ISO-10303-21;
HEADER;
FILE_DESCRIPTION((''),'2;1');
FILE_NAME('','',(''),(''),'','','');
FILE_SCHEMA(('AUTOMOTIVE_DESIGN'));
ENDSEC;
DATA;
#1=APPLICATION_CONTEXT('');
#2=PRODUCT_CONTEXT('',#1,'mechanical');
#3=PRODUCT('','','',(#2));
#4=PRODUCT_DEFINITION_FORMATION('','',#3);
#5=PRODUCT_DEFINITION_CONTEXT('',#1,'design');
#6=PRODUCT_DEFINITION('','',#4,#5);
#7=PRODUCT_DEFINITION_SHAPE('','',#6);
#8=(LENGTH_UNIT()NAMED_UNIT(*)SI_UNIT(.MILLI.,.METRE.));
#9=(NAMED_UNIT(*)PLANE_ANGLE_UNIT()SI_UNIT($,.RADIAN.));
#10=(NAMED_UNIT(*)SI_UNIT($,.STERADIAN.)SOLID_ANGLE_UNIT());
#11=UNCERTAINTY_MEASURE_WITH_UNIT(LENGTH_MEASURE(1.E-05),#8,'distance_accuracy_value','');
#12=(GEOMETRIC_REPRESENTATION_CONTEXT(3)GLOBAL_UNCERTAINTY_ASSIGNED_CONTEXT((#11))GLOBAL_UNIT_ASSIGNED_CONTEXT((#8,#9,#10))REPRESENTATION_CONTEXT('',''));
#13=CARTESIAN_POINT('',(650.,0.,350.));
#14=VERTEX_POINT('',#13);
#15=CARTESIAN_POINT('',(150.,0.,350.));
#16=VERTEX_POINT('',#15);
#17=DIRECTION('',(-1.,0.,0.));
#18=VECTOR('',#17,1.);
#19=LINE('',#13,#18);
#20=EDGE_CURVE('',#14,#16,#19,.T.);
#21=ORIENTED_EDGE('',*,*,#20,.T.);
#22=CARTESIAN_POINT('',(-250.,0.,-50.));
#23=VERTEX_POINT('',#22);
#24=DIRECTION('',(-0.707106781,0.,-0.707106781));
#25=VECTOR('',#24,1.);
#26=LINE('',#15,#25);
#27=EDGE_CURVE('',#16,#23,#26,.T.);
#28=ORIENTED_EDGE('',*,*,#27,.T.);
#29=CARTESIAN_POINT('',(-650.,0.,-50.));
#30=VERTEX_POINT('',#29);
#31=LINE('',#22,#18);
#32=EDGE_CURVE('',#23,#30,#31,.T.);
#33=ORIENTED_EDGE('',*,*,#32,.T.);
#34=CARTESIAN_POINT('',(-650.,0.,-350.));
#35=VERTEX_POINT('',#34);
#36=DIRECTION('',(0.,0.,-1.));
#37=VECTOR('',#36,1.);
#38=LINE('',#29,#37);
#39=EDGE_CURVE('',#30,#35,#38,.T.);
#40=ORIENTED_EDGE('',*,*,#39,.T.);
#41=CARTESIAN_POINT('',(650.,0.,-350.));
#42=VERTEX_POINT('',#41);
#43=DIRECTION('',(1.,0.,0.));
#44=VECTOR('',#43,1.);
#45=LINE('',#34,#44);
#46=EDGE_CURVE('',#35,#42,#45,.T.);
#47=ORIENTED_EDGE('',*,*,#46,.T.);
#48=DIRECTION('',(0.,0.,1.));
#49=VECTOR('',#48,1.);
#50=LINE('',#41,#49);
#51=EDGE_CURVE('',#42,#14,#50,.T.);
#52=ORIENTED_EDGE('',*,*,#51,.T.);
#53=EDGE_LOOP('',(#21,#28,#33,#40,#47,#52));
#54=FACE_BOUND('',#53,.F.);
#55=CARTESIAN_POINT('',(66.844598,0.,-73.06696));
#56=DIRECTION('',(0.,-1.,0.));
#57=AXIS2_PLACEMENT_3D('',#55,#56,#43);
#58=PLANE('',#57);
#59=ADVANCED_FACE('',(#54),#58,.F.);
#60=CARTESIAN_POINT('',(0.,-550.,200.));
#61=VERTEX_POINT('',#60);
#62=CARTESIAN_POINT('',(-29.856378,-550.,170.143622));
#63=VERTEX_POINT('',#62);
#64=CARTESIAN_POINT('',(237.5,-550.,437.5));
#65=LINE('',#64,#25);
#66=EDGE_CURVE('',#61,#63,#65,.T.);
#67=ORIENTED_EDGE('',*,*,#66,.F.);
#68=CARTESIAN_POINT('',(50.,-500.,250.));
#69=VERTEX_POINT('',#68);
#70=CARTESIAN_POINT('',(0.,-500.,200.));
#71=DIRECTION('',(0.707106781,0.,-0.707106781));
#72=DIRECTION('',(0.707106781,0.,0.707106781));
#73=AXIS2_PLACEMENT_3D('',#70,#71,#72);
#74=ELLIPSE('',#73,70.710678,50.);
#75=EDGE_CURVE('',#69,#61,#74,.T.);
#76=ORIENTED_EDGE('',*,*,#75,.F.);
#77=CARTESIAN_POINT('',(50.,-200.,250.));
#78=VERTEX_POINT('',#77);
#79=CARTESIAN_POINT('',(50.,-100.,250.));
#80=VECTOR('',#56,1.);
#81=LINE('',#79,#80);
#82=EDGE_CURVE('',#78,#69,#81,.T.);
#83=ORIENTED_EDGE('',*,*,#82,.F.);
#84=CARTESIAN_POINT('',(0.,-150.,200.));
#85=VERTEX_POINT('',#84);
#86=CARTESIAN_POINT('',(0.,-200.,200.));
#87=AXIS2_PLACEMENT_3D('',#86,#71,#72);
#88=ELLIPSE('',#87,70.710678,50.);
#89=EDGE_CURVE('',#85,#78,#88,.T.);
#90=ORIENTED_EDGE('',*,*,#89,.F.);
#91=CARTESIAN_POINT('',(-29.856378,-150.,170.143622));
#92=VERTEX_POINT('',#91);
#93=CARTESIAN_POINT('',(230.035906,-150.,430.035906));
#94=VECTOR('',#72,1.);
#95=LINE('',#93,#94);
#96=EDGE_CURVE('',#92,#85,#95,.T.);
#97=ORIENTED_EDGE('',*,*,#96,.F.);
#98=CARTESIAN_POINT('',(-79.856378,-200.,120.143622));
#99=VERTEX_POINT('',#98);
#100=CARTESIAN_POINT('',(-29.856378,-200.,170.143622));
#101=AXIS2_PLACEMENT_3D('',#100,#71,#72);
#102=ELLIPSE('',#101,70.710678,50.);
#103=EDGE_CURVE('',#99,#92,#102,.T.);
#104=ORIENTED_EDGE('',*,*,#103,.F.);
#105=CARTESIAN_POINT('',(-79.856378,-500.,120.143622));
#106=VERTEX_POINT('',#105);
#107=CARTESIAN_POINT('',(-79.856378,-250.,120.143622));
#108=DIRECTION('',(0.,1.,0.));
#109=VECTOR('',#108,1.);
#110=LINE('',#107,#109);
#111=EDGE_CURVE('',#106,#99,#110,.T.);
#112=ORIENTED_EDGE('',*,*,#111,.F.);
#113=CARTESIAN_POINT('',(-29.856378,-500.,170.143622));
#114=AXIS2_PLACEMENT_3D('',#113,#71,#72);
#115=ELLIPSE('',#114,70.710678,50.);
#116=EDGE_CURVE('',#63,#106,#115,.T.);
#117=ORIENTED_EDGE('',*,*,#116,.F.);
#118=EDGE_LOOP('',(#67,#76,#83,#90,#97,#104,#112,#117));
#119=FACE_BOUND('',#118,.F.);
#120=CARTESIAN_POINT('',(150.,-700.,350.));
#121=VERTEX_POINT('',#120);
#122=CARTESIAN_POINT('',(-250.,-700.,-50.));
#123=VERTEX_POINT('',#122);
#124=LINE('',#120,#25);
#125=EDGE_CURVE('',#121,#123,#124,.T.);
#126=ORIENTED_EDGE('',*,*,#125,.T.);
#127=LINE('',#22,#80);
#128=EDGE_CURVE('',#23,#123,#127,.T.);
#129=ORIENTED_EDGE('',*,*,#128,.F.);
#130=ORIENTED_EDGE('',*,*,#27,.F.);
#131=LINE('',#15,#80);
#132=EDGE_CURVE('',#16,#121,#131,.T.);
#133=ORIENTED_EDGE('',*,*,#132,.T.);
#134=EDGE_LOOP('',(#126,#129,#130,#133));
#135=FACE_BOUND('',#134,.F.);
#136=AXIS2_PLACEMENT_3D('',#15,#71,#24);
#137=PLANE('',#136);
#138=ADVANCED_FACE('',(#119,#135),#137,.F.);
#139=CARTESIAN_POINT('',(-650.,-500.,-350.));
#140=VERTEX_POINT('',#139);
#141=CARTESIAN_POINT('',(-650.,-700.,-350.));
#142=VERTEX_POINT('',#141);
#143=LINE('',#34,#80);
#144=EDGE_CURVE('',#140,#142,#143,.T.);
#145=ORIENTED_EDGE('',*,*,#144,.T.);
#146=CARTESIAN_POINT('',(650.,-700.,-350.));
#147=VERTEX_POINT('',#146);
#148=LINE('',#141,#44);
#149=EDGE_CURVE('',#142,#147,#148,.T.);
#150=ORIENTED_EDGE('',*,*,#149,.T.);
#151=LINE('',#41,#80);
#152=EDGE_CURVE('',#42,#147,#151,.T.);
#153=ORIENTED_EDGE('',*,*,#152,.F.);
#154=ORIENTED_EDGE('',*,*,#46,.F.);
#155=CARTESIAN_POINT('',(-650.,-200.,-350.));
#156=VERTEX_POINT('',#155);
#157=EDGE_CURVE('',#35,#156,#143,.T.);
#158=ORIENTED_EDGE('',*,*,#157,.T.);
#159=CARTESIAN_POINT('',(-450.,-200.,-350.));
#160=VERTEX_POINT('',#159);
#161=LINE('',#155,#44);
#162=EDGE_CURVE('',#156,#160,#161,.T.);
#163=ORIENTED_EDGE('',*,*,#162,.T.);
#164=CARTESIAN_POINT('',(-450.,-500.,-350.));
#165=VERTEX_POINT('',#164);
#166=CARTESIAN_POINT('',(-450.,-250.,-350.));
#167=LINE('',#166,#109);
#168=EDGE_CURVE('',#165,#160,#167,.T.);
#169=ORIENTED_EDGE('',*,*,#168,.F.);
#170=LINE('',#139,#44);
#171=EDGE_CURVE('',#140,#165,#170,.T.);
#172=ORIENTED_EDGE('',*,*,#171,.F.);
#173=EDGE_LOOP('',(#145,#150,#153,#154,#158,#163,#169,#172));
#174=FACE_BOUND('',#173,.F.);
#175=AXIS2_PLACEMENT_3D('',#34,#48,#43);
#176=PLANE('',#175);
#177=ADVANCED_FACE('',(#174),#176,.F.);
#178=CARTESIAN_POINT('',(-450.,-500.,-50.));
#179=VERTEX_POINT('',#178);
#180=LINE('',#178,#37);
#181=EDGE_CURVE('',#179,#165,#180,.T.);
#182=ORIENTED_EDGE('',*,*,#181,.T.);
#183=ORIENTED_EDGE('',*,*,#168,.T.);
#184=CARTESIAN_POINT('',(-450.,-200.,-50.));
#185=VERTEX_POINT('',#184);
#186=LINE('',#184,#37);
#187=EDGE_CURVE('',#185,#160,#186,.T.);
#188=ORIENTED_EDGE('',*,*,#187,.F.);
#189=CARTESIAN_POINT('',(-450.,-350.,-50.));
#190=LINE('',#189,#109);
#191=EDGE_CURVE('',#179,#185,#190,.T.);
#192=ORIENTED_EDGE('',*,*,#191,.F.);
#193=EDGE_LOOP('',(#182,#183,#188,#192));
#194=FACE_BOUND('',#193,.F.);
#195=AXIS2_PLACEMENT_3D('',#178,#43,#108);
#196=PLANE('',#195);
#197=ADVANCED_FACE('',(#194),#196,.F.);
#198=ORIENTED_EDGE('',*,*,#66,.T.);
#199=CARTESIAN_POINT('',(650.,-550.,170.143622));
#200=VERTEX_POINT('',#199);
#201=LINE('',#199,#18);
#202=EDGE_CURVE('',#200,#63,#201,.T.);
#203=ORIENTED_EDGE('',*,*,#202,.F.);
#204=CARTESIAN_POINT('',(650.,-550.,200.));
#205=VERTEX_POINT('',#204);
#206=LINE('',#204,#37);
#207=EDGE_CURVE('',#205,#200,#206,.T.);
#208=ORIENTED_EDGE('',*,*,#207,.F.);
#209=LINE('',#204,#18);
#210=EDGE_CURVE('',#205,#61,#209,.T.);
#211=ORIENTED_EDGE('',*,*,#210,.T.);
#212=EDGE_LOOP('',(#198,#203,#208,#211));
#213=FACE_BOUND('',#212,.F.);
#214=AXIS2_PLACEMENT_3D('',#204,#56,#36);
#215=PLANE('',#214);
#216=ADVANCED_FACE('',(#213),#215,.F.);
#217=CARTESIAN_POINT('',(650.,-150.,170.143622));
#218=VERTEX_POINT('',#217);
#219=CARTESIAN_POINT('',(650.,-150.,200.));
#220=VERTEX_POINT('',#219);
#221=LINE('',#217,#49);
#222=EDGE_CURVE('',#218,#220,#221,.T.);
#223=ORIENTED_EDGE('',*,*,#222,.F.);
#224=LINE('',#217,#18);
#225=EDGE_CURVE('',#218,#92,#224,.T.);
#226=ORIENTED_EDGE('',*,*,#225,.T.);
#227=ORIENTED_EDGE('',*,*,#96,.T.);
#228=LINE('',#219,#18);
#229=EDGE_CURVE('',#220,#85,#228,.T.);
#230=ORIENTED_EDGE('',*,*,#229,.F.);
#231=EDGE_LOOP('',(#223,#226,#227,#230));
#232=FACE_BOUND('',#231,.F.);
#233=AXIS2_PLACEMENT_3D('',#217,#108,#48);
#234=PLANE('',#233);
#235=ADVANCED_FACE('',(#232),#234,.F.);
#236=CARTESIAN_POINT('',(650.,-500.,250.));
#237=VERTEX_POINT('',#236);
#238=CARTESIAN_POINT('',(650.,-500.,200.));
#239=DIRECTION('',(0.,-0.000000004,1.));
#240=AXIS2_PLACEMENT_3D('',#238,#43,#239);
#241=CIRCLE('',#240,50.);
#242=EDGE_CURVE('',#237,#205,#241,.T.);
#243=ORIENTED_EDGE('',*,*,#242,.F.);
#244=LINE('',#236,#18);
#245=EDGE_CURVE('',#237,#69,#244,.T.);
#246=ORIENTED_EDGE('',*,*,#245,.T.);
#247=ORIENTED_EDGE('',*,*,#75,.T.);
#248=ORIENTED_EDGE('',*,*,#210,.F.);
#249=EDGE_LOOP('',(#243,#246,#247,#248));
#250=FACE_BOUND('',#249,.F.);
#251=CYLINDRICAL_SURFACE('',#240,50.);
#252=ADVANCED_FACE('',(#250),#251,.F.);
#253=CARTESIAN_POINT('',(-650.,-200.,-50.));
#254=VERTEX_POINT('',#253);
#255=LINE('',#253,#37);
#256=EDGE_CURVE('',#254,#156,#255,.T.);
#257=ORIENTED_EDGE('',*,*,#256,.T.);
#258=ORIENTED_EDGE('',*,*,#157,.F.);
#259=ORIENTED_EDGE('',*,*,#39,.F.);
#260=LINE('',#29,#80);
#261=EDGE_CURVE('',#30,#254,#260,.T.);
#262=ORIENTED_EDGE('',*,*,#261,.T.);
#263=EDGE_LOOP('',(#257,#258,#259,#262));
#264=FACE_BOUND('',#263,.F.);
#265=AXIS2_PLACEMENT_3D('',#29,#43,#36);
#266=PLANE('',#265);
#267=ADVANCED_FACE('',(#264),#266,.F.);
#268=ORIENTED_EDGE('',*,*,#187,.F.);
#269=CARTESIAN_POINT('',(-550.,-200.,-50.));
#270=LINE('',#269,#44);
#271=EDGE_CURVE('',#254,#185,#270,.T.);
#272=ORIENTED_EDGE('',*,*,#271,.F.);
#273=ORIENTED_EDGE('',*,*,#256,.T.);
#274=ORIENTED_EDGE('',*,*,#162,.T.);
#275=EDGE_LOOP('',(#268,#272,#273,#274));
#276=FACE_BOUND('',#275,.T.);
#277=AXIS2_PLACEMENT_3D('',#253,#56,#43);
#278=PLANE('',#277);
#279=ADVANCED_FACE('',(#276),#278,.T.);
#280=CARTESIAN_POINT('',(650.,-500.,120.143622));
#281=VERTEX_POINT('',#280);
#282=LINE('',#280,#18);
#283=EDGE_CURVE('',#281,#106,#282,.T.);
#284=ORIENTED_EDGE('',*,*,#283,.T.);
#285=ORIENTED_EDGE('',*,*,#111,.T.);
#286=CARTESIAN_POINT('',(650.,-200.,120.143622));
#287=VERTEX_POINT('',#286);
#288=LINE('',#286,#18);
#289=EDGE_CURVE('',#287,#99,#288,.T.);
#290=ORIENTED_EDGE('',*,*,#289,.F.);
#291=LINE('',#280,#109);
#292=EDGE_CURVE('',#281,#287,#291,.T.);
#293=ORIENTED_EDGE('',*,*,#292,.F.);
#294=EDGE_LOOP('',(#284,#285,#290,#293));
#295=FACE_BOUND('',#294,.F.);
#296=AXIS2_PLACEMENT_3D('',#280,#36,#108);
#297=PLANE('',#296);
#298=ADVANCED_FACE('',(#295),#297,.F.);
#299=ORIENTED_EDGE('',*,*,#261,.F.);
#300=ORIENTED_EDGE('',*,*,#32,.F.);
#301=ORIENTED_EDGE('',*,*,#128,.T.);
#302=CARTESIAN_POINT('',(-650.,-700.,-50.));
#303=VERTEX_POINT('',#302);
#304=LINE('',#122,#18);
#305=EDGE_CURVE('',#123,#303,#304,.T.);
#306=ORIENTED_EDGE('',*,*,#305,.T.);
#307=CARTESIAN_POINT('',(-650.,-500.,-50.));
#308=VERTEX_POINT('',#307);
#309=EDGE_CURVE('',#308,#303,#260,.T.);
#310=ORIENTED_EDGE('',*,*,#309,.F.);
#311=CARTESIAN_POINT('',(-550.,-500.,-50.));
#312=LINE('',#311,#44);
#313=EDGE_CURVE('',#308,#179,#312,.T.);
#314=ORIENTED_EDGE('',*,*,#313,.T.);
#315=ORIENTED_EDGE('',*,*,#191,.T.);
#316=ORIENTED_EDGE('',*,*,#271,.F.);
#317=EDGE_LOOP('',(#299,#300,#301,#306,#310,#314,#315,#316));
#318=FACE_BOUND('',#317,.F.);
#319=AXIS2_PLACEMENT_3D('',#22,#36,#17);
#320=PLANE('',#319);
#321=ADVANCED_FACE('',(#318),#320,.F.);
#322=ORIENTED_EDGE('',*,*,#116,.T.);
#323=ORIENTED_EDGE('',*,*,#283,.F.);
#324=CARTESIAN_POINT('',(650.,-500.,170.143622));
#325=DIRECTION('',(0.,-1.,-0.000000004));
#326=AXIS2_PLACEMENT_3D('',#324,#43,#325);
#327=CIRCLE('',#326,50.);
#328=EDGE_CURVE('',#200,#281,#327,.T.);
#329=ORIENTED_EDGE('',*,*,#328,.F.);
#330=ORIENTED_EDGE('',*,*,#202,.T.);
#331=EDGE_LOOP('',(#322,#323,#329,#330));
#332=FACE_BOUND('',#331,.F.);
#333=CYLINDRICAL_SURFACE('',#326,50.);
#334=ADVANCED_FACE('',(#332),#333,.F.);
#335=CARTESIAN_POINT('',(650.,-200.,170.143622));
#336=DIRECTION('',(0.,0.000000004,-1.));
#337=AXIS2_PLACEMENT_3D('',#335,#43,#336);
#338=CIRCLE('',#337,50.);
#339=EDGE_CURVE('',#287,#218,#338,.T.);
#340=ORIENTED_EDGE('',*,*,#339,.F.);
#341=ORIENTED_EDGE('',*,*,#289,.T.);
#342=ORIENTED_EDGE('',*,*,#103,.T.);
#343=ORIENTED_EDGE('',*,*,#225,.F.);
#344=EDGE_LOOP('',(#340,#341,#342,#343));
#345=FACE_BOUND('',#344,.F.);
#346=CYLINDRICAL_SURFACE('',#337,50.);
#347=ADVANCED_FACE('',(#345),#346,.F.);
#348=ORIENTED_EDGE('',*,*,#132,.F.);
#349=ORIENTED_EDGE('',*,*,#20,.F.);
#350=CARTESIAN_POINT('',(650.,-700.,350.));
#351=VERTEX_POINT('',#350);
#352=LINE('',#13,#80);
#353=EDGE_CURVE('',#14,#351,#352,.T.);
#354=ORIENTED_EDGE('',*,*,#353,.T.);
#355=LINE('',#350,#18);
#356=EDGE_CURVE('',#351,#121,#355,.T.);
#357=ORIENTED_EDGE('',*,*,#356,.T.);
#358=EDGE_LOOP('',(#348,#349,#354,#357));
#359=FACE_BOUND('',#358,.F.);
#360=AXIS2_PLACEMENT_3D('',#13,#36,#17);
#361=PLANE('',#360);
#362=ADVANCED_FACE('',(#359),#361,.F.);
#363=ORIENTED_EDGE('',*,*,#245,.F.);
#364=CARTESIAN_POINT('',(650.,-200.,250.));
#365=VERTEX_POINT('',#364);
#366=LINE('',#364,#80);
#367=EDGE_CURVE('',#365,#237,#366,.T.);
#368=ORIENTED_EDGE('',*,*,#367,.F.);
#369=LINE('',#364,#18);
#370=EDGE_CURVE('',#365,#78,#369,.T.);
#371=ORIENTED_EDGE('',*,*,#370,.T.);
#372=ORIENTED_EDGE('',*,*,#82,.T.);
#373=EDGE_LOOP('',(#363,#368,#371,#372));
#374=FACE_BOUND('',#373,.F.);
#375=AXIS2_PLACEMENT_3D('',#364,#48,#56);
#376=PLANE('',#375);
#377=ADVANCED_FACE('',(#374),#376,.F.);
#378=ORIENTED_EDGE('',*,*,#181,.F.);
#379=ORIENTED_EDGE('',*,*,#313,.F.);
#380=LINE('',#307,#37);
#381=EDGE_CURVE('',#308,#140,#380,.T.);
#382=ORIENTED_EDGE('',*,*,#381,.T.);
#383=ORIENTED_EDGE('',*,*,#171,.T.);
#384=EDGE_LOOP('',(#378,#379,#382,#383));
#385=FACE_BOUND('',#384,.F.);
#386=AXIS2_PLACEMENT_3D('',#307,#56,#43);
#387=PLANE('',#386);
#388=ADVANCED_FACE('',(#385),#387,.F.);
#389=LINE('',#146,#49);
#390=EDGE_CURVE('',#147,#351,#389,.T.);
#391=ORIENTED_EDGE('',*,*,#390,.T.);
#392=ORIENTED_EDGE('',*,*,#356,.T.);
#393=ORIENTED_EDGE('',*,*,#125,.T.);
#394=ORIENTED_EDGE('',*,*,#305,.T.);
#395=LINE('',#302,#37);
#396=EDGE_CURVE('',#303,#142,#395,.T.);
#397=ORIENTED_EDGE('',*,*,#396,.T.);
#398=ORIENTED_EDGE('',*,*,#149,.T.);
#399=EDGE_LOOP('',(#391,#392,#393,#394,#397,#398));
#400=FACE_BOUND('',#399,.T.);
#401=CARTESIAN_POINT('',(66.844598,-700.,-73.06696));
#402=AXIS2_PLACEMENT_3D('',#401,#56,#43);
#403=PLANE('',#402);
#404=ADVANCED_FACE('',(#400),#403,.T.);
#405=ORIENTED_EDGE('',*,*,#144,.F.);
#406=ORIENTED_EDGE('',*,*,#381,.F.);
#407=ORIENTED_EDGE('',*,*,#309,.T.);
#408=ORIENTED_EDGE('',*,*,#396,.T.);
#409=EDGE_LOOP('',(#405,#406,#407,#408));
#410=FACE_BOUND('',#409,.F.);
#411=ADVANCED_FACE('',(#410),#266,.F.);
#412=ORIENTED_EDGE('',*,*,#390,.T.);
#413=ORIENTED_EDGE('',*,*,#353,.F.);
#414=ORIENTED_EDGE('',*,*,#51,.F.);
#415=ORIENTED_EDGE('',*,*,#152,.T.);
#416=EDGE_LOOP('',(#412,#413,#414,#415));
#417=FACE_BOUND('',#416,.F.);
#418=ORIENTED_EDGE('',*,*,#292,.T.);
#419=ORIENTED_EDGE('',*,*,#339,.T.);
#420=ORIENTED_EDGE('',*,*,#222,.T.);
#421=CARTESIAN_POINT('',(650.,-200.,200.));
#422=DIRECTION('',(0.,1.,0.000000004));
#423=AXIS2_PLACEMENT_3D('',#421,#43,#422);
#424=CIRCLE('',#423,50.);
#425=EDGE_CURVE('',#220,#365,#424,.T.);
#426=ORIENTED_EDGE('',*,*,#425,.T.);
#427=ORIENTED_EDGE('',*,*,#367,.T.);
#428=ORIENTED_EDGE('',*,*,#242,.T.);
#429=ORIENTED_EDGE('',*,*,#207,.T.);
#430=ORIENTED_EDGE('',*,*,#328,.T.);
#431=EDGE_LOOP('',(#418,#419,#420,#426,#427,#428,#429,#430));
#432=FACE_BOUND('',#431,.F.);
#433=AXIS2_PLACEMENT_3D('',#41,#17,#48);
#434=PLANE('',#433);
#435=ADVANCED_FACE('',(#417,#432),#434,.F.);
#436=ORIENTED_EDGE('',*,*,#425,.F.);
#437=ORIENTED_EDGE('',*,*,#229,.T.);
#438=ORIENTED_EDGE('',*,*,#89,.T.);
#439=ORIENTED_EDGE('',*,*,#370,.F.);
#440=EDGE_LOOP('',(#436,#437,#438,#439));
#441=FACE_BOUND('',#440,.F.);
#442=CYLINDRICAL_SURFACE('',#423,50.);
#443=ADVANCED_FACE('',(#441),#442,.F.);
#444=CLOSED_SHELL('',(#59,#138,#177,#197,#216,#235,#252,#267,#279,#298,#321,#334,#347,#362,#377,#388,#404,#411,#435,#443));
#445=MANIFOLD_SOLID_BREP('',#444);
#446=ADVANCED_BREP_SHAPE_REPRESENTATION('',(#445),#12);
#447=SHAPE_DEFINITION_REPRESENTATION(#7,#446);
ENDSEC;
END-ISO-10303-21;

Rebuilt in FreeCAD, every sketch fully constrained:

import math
import FreeCAD as App
import Part
import Sketcher
from FreeCAD import Vector
Q = App.Units.Quantity


def add_polygon(sketch, points):
    """Adds a closed chain of lines whose ends are joined by coincident constraints."""
    first, n = sketch.GeometryCount, len(points)
    for a, b in zip(points, points[1:] + points[:1]):
        sketch.addGeometry(Part.LineSegment(App.Vector(*a, 0), App.Vector(*b, 0)), False)
    for i in range(n):
        sketch.addConstraint(Sketcher.Constraint("Coincident", first + i, 2, first + (i + 1) % n, 1))

doc = App.newDocument("Part")
body = doc.addObject("PartDesign::Body", "Body")

# Sketch on XZ plane
sketch1 = doc.addObject("Sketcher::SketchObject", "Sketch")
body.addObject(sketch1)
sketch1.AttachmentSupport = (doc.XZ_Plane, [""])
sketch1.MapMode = "FlatFace"
add_polygon(sketch1, [(650, -350), (650, 350), (150, 350), (-250, -50), (-650, -50), (-650, -350)])  # lines 0-5
sketch1.addConstraint(Sketcher.Constraint("Vertical", 0))
sketch1.addConstraint(Sketcher.Constraint("Horizontal", 1))
sketch1.addConstraint(Sketcher.Constraint("Horizontal", 3))
sketch1.addConstraint(Sketcher.Constraint("Vertical", 4))
sketch1.addConstraint(Sketcher.Constraint("Horizontal", 5))
sketch1.addConstraint(Sketcher.Constraint("Symmetric", 0, 2, 4, 2, -1, 1))
sketch1.addConstraint(Sketcher.Constraint("DistanceX", 1, 2, 1, 1, Q("500 mm")))
sketch1.addConstraint(Sketcher.Constraint("DistanceX", 3, 2, 3, 1, Q("400 mm")))
sketch1.addConstraint(Sketcher.Constraint("DistanceX", 5, 1, 5, 2, Q("1300 mm")))
sketch1.addConstraint(Sketcher.Constraint("DistanceY", 0, 1, 0, 2, Q("700 mm")))
sketch1.addConstraint(Sketcher.Constraint("DistanceY", 4, 2, 4, 1, Q("300 mm")))
pad1 = doc.addObject("PartDesign::Pad", "Pad")
body.addObject(pad1)
pad1.Profile = sketch1
pad1.Length = 700

# Sketch on YZ plane
sketch2 = doc.addObject("Sketcher::SketchObject", "Sketch001")
body.addObject(sketch2)
sketch2.AttachmentSupport = (doc.YZ_Plane, [""])
sketch2.MapMode = "FlatFace"
sketch2.AttachmentOffset = App.Placement(Vector(0, 0, 650), App.Rotation())
sketch2.addGeometry(Part.ArcOfCircle(Part.Circle(Vector(-500, 170, 0), Vector(0, 0, 1), 50), math.radians(-180), math.radians(-90)), False)
sketch2.addGeometry(Part.LineSegment(Vector(-500, 120, 0), Vector(-200, 120, 0)), False)
sketch2.addGeometry(Part.ArcOfCircle(Part.Circle(Vector(-200, 170, 0), Vector(0, 0, 1), 50), math.radians(-90), math.radians(0)), False)
sketch2.addGeometry(Part.LineSegment(Vector(-150, 170, 0), Vector(-150, 200, 0)), False)
sketch2.addGeometry(Part.ArcOfCircle(Part.Circle(Vector(-200, 200, 0), Vector(0, 0, 1), 50), math.radians(0), math.radians(90)), False)
sketch2.addGeometry(Part.LineSegment(Vector(-200, 250, 0), Vector(-500, 250, 0)), False)
sketch2.addGeometry(Part.ArcOfCircle(Part.Circle(Vector(-500, 200, 0), Vector(0, 0, 1), 50), math.radians(90), math.radians(180)), False)
sketch2.addGeometry(Part.LineSegment(Vector(-550, 200, 0), Vector(-550, 170, 0)), False)
sketch2.addConstraint(Sketcher.Constraint("Tangent", 0, 2, 1, 1))
sketch2.addConstraint(Sketcher.Constraint("Tangent", 1, 2, 2, 1))
sketch2.addConstraint(Sketcher.Constraint("Tangent", 2, 2, 3, 1))
sketch2.addConstraint(Sketcher.Constraint("Tangent", 3, 2, 4, 1))
sketch2.addConstraint(Sketcher.Constraint("Tangent", 4, 2, 5, 1))
sketch2.addConstraint(Sketcher.Constraint("Tangent", 5, 2, 6, 1))
sketch2.addConstraint(Sketcher.Constraint("Tangent", 6, 2, 7, 1))
sketch2.addConstraint(Sketcher.Constraint("Tangent", 7, 2, 0, 1))
sketch2.addConstraint(Sketcher.Constraint("Horizontal", 1))
sketch2.addConstraint(Sketcher.Constraint("Vertical", 3))
sketch2.addConstraint(Sketcher.Constraint("Horizontal", 5))
sketch2.addConstraint(Sketcher.Constraint("Vertical", 7))
sketch2.addConstraint(Sketcher.Constraint("Equal", 0, 2))
sketch2.addConstraint(Sketcher.Constraint("Equal", 2, 4))
sketch2.addConstraint(Sketcher.Constraint("Equal", 4, 6))
sketch2.addConstraint(Sketcher.Constraint("Radius", 0, Q("50 mm")))
sketch2.addConstraint(Sketcher.Constraint("DistanceX", 1, 1, 1, 2, Q("300 mm")))
sketch2.addConstraint(Sketcher.Constraint("DistanceX", 0, 3, -1, 1, Q("500 mm")))
sketch2.addConstraint(Sketcher.Constraint("DistanceY", -1, 1, 4, 3, Q("200 mm")))
sketch2.addConstraint(Sketcher.Constraint("DistanceY", 3, 1, 3, 2, Q("29.856378 mm")))
pocket1 = doc.addObject("PartDesign::Pocket", "Pocket")
body.addObject(pocket1)
pocket1.Profile = sketch2
pocket1.Type = "ThroughAll"

# Sketch on XY plane
sketch3 = doc.addObject("Sketcher::SketchObject", "Sketch002")
body.addObject(sketch3)
sketch3.AttachmentSupport = (doc.XY_Plane, [""])
sketch3.MapMode = "FlatFace"
sketch3.AttachmentOffset = App.Placement(Vector(0, 0, -50), App.Rotation())
add_polygon(sketch3, [(-650, -200), (-650, -500), (-450, -500), (-450, -200)])  # lines 0-3
sketch3.addConstraint(Sketcher.Constraint("Vertical", 0))
sketch3.addConstraint(Sketcher.Constraint("Horizontal", 1))
sketch3.addConstraint(Sketcher.Constraint("Vertical", 2))
sketch3.addConstraint(Sketcher.Constraint("Horizontal", 3))
sketch3.addConstraint(Sketcher.Constraint("DistanceX", 1, 1, 1, 2, Q("200 mm")))
sketch3.addConstraint(Sketcher.Constraint("DistanceY", 0, 2, 0, 1, Q("300 mm")))
sketch3.addConstraint(Sketcher.Constraint("DistanceX", 0, 2, -1, 1, Q("650 mm")))
sketch3.addConstraint(Sketcher.Constraint("DistanceY", 0, 2, -1, 1, Q("500 mm")))
pocket2 = doc.addObject("PartDesign::Pocket", "Pocket001")
body.addObject(pocket2)
pocket2.Profile = sketch3
pocket2.Type = "ThroughAll"

doc.recompute()
